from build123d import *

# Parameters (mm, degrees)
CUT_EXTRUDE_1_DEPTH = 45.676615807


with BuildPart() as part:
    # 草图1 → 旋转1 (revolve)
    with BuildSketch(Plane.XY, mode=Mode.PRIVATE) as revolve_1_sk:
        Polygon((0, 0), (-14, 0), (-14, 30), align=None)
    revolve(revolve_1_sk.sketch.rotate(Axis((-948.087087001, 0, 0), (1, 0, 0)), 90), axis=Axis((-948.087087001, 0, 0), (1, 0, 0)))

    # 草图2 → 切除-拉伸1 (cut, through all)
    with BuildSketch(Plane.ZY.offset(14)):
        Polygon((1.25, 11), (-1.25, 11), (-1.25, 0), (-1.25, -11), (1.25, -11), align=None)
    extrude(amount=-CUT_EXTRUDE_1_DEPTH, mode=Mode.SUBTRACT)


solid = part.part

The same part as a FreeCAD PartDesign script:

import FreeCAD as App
import Part
import Sketcher

V = App.Vector
Q = App.Units.Quantity


def add_polygon(sketch, points):
    """Adds a closed chain of lines whose ends are joined by coincident constraints."""
    first, n = sketch.GeometryCount, len(points)
    for a, b in zip(points, points[1:] + points[:1]):
        sketch.addGeometry(Part.LineSegment(App.Vector(*a, 0), App.Vector(*b, 0)), False)
    for i in range(n):
        sketch.addConstraint(Sketcher.Constraint("Coincident", first + i, 2, first + (i + 1) % n, 1))

doc = App.newDocument("Part")
body = doc.addObject("PartDesign::Body", "Body")

sketch1 = doc.addObject("Sketcher::SketchObject", "Sketch")
body.addObject(sketch1)
sketch1.AttachmentSupport = (doc.XY_Plane, [""])
sketch1.MapMode = "FlatFace"
add_polygon(sketch1, [(-14, 0), (0, 0), (-14, 30)])
sketch1.addConstraint(Sketcher.Constraint("Horizontal", 0))
sketch1.addConstraint(Sketcher.Constraint("Vertical", 2))
sketch1.addConstraint(Sketcher.Constraint("Coincident", 0, 2, -1, 1))
sketch1.addConstraint(Sketcher.Constraint("DistanceX", 0, 1, 0, 2, Q("14 mm")))
sketch1.addConstraint(Sketcher.Constraint("DistanceY", 2, 2, 2, 1, Q("30 mm")))
revolution = doc.addObject("PartDesign::Revolution", "Revolution")
body.addObject(revolution)
revolution.Profile = sketch1
revolution.ReferenceAxis = (sketch1, ["H_Axis"])
revolution.Angle = 360

sketch2 = doc.addObject("Sketcher::SketchObject", "Sketch001")
body.addObject(sketch2)
sketch2.AttachmentSupport = (doc.YZ_Plane, [""])
sketch2.MapMode = "FlatFace"
sketch2.AttachmentOffset = App.Placement(V(0, 0, -14), App.Rotation())
add_polygon(sketch2, [(11, 1.25), (11, -1.25), (-11, -1.25), (-11, 1.25)])
sketch2.addConstraint(Sketcher.Constraint("Vertical", 0))
sketch2.addConstraint(Sketcher.Constraint("Horizontal", 1))
sketch2.addConstraint(Sketcher.Constraint("Vertical", 2))
sketch2.addConstraint(Sketcher.Constraint("Horizontal", 3))
sketch2.addConstraint(Sketcher.Constraint("Symmetric", 0, 2, 2, 2, -1, 1))
sketch2.addConstraint(Sketcher.Constraint("DistanceX", 1, 2, 1, 1, Q("22 mm")))
sketch2.addConstraint(Sketcher.Constraint("DistanceY", 0, 2, 0, 1, Q("2.5 mm")))
pocket1 = doc.addObject("PartDesign::Pocket", "Pocket")
body.addObject(pocket1)
pocket1.Profile = sketch2
pocket1.Type = "ThroughAll"
pocket1.Reversed = True

doc.recompute()
